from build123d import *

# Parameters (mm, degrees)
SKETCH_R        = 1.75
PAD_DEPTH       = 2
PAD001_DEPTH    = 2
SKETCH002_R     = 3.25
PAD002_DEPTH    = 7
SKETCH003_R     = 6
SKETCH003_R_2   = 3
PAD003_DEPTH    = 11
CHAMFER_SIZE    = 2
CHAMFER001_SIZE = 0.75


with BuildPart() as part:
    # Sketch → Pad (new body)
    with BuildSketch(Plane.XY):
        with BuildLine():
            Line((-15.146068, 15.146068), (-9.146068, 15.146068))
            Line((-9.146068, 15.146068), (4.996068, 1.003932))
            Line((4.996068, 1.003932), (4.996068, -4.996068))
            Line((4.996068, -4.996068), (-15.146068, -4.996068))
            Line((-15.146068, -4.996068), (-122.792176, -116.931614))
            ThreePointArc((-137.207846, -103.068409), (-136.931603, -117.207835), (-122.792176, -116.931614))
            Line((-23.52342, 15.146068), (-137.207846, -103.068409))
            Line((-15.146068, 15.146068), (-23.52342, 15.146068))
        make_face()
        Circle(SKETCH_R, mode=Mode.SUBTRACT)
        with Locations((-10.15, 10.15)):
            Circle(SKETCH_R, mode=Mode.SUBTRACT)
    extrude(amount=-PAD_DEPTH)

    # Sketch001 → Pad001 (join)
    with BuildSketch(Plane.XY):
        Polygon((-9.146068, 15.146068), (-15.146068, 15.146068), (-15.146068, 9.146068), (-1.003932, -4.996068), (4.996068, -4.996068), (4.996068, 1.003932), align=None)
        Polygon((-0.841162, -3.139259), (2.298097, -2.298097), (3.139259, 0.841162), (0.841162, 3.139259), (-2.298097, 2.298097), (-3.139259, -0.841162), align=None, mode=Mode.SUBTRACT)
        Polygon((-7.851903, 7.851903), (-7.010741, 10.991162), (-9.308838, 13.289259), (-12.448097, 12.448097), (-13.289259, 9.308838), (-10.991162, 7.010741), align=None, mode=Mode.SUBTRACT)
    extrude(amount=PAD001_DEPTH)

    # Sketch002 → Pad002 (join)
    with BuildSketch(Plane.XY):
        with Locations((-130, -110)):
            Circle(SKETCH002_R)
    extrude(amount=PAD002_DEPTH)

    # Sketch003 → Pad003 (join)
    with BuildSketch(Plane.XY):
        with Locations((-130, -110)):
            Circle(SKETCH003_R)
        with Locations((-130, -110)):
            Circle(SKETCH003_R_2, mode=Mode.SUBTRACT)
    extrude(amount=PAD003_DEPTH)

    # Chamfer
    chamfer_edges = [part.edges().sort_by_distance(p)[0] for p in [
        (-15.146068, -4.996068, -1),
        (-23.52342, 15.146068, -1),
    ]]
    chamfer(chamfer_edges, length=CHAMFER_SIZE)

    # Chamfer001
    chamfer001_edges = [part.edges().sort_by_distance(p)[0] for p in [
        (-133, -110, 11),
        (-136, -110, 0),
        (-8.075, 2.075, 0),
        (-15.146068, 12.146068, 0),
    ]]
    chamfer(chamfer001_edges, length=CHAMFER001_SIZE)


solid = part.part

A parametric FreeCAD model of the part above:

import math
import FreeCAD as App
import Part
import Sketcher
from FreeCAD import Vector
Q = App.Units.Quantity


def edges_at(feature, points):
    """Names of the edges that pass closest to the given points."""
    edges = feature.Shape.Edges
    near = lambda p: min(range(len(edges)), key=lambda i: edges[i].distToShape(Part.Vertex(*p))[0])
    return sorted({f"Edge{near(p) + 1}" for p in points})


def add_polygon(sketch, points):
    """Adds a closed chain of lines whose ends are joined by coincident constraints."""
    first, n = sketch.GeometryCount, len(points)
    for a, b in zip(points, points[1:] + points[:1]):
        sketch.addGeometry(Part.LineSegment(App.Vector(*a, 0), App.Vector(*b, 0)), False)
    for i in range(n):
        sketch.addConstraint(Sketcher.Constraint("Coincident", first + i, 2, first + (i + 1) % n, 1))

doc = App.newDocument("Part")
body = doc.addObject("PartDesign::Body", "Body")

# Sketch on XY plane
sketch1 = doc.addObject("Sketcher::SketchObject", "Sketch")
body.addObject(sketch1)
sketch1.AttachmentSupport = (doc.XY_Plane, [""])
sketch1.MapMode = "FlatFace"
sketch1.addGeometry(Part.LineSegment(Vector(-9.1, 15.1, 0), Vector(-23.5, 15.1, 0)), False)
sketch1.addGeometry(Part.LineSegment(Vector(-23.5, 15.1, 0), Vector(-137.2, -103.1, 0)), False)
sketch1.addGeometry(Part.ArcOfCircle(Part.Circle(Vector(-130, -110, 0), Vector(0, 0, 1), 10), math.radians(136), math.radians(316)), False)
sketch1.addGeometry(Part.LineSegment(Vector(-122.8, -116.9, 0), Vector(-15.1, -5, 0)), False)
sketch1.addGeometry(Part.LineSegment(Vector(-15.1, -5, 0), Vector(5, -5, 0)), False)
sketch1.addGeometry(Part.LineSegment(Vector(5, -5, 0), Vector(5, 1, 0)), False)
sketch1.addGeometry(Part.LineSegment(Vector(5, 1, 0), Vector(-9.1, 15.1, 0)), False)
sketch1.addGeometry(Part.Circle(Vector(0, 0, 0), Vector(0, 0, 1), 1.8), False)
sketch1.addGeometry(Part.Circle(Vector(-10.2, 10.2, 0), Vector(0, 0, 1), 1.8), False)
sketch1.addConstraint(Sketcher.Constraint("Coincident", 0, 2, 1, 1))
sketch1.addConstraint(Sketcher.Constraint("Coincident", 1, 2, 2, 1))
sketch1.addConstraint(Sketcher.Constraint("Tangent", 2, 2, 3, 1))
sketch1.addConstraint(Sketcher.Constraint("Coincident", 3, 2, 4, 1))
sketch1.addConstraint(Sketcher.Constraint("Coincident", 4, 2, 5, 1))
sketch1.addConstraint(Sketcher.Constraint("Coincident", 5, 2, 6, 1))
sketch1.addConstraint(Sketcher.Constraint("Coincident", 6, 2, 0, 1))
sketch1.addConstraint(Sketcher.Constraint("Horizontal", 0))
sketch1.addConstraint(Sketcher.Constraint("Horizontal", 4))
sketch1.addConstraint(Sketcher.Constraint("Vertical", 5))
sketch1.addConstraint(Sketcher.Constraint("Coincident", 7, 3, -1, 1))
sketch1.addConstraint(Sketcher.Constraint("Equal", 7, 8))
sketch1.addConstraint(Sketcher.Constraint("Parallel", 1, 3))
sketch1.addConstraint(Sketcher.Constraint("Radius", 2, 10.0))
sketch1.addConstraint(Sketcher.Constraint("Diameter", 7, 3.5))
sketch1.addConstraint(Sketcher.Constraint("DistanceY", 5, 1, 5, 2, 6.0))
sketch1.addConstraint(Sketcher.Constraint("Angle", 6, Q("135 deg")))
sketch1.addConstraint(Sketcher.Constraint("Distance", 6, 20.000001))
sketch1.addConstraint(Sketcher.Constraint("DistanceX", 2, 3, -1, 1, 130.0))
sketch1.addConstraint(Sketcher.Constraint("DistanceY", 2, 3, -1, 1, 110.0))
sketch1.addConstraint(Sketcher.Constraint("DistanceX", 3, 2, 6, 2, 6.0))
sketch1.addConstraint(Sketcher.Constraint("DistanceX", 8, 3, -1, 1, 10.15))
sketch1.addConstraint(Sketcher.Constraint("DistanceY", -1, 1, 8, 3, 10.15))
sketch1.addConstraint(Sketcher.Constraint("Distance", 3, 155.297299))
sketch1.addConstraint(Sketcher.Constraint("Distance", 1, 164.008571))
sketch1.addConstraint(Sketcher.Constraint("DistanceX", 0, 2, 0, 1, 14.377352))
pad1 = doc.addObject("PartDesign::Pad", "Pad")
body.addObject(pad1)
pad1.Profile = sketch1
pad1.Length = 2
pad1.Reversed = True

# Sketch on XY plane
sketch2 = doc.addObject("Sketcher::SketchObject", "Sketch001")
body.addObject(sketch2)
sketch2.AttachmentSupport = (doc.XY_Plane, [""])
sketch2.MapMode = "FlatFace"
add_polygon(sketch2, [(-9.1, 15.1), (-15.1, 15.1), (-15.1, 9.1), (-1, -5), (5, -5), (5, 1)])  # lines 0-5
add_polygon(sketch2, [(2.3, -2.3), (-0.8, -3.1), (-3.1, -0.8), (-2.3, 2.3), (0.8, 3.1), (3.1, 0.8)])  # lines 6-11
add_polygon(sketch2, [(-7, 11), (-7.9, 7.9), (-11, 7), (-13.3, 9.3), (-12.4, 12.4), (-9.3, 13.3)])  # lines 12-17
sketch2.addConstraint(Sketcher.Constraint("Horizontal", 0))
sketch2.addConstraint(Sketcher.Constraint("Vertical", 1))
sketch2.addConstraint(Sketcher.Constraint("Horizontal", 3))
sketch2.addConstraint(Sketcher.Constraint("Vertical", 4))
sketch2.addConstraint(Sketcher.Constraint("Symmetric", 6, 2, 9, 2, -1, 1))
sketch2.addConstraint(Sketcher.Constraint("Symmetric", 7, 2, 10, 2, -1, 1))
sketch2.addConstraint(Sketcher.Constraint("Symmetric", 8, 2, 11, 2, -1, 1))
sketch2.addConstraint(Sketcher.Constraint("Parallel", 2, 5))
sketch2.addConstraint(Sketcher.Constraint("Parallel", 5, 7))
sketch2.addConstraint(Sketcher.Constraint("Parallel", 11, 12))
sketch2.addConstraint(Sketcher.Constraint("Parallel", 9, 13))
sketch2.addConstraint(Sketcher.Constraint("Parallel", 10, 14))
sketch2.addConstraint(Sketcher.Constraint("Parallel", 12, 15))
sketch2.addConstraint(Sketcher.Constraint("Parallel", 13, 16))
sketch2.addConstraint(Sketcher.Constraint("Parallel", 14, 17))
sketch2.addConstraint(Sketcher.Constraint("Equal", 0, 3))
sketch2.addConstraint(Sketcher.Constraint("Equal", 3, 1))
sketch2.addConstraint(Sketcher.Constraint("Equal", 6, 7))
sketch2.addConstraint(Sketcher.Constraint("Equal", 7, 8))
sketch2.addConstraint(Sketcher.Constraint("Equal", 11, 12))
sketch2.addConstraint(Sketcher.Constraint("Equal", 12, 13))
sketch2.addConstraint(Sketcher.Constraint("Equal", 13, 14))
sketch2.addConstraint(Sketcher.Constraint("Equal", 14, 15))
sketch2.addConstraint(Sketcher.Constraint("DistanceX", 0, 2, 0, 1, 6.0))
sketch2.addConstraint(Sketcher.Constraint("Angle", 2, Q("-45 deg")))
sketch2.addConstraint(Sketcher.Constraint("Angle", 6, Q("-164.999999 deg")))
sketch2.addConstraint(Sketcher.Constraint("Angle", 8, Q("74.999999 deg")))
sketch2.addConstraint(Sketcher.Constraint("Distance", 2, 20.000001))
sketch2.addConstraint(Sketcher.Constraint("Distance", 6, 3.25))
sketch2.addConstraint(Sketcher.Constraint("DistanceY", 2, 2, -1, 1, 4.996068))
sketch2.addConstraint(Sketcher.Constraint("DistanceX", -1, 1, 3, 2, 4.996068))
sketch2.addConstraint(Sketcher.Constraint("DistanceX", 13, 2, -1, 1, 10.991162))
sketch2.addConstraint(Sketcher.Constraint("DistanceY", -1, 1, 13, 2, 7.010741))
pad2 = doc.addObject("PartDesign::Pad", "Pad001")
body.addObject(pad2)
pad2.Profile = sketch2
pad2.Length = 2

# Sketch on XY plane
sketch3 = doc.addObject("Sketcher::SketchObject", "Sketch002")
body.addObject(sketch3)
sketch3.AttachmentSupport = (doc.XY_Plane, [""])
sketch3.MapMode = "FlatFace"
sketch3.addGeometry(Part.Circle(Vector(-130, -110, 0), Vector(0, 0, 1), 3.2), False)
sketch3.addConstraint(Sketcher.Constraint("Diameter", 0, 6.5))
sketch3.addConstraint(Sketcher.Constraint("DistanceX", 0, 3, -1, 1, 130.0))
sketch3.addConstraint(Sketcher.Constraint("DistanceY", 0, 3, -1, 1, 110.0))
pad3 = doc.addObject("PartDesign::Pad", "Pad002")
body.addObject(pad3)
pad3.Profile = sketch3
pad3.Length = 7

# Sketch on XY plane
sketch4 = doc.addObject("Sketcher::SketchObject", "Sketch003")
body.addObject(sketch4)
sketch4.AttachmentSupport = (doc.XY_Plane, [""])
sketch4.MapMode = "FlatFace"
sketch4.addGeometry(Part.Circle(Vector(-130, -110, 0), Vector(0, 0, 1), 6), False)
sketch4.addGeometry(Part.Circle(Vector(-130, -110, 0), Vector(0, 0, 1), 3), False)
sketch4.addConstraint(Sketcher.Constraint("Coincident", 1, 3, 0, 3))
sketch4.addConstraint(Sketcher.Constraint("Diameter", 0, 12.0))
sketch4.addConstraint(Sketcher.Constraint("Diameter", 1, 6.0))
sketch4.addConstraint(Sketcher.Constraint("DistanceX", 0, 3, -1, 1, 130.0))
sketch4.addConstraint(Sketcher.Constraint("DistanceY", 0, 3, -1, 1, 110.0))
pad4 = doc.addObject("PartDesign::Pad", "Pad003")
body.addObject(pad4)
pad4.Profile = sketch4
pad4.Length = 11
doc.recompute()

chamfer = doc.addObject("PartDesign::Chamfer", "Chamfer")
body.addObject(chamfer)
chamfer.Base = (pad4, edges_at(pad4, [(-15.146, -4.996, -1), (-23.523, 15.146, -1)]))
chamfer.Size = 2
doc.recompute()

chamfer2 = doc.addObject("PartDesign::Chamfer", "Chamfer001")
body.addObject(chamfer2)
chamfer2.Base = (chamfer, edges_at(chamfer, [
    (-133, -110, 11),
    (-136, -110, 0),
    (-8.075, 2.075, 0),
    (-15.146, 12.146, 0),
]))
chamfer2.Size = 0.75

doc.recompute()
